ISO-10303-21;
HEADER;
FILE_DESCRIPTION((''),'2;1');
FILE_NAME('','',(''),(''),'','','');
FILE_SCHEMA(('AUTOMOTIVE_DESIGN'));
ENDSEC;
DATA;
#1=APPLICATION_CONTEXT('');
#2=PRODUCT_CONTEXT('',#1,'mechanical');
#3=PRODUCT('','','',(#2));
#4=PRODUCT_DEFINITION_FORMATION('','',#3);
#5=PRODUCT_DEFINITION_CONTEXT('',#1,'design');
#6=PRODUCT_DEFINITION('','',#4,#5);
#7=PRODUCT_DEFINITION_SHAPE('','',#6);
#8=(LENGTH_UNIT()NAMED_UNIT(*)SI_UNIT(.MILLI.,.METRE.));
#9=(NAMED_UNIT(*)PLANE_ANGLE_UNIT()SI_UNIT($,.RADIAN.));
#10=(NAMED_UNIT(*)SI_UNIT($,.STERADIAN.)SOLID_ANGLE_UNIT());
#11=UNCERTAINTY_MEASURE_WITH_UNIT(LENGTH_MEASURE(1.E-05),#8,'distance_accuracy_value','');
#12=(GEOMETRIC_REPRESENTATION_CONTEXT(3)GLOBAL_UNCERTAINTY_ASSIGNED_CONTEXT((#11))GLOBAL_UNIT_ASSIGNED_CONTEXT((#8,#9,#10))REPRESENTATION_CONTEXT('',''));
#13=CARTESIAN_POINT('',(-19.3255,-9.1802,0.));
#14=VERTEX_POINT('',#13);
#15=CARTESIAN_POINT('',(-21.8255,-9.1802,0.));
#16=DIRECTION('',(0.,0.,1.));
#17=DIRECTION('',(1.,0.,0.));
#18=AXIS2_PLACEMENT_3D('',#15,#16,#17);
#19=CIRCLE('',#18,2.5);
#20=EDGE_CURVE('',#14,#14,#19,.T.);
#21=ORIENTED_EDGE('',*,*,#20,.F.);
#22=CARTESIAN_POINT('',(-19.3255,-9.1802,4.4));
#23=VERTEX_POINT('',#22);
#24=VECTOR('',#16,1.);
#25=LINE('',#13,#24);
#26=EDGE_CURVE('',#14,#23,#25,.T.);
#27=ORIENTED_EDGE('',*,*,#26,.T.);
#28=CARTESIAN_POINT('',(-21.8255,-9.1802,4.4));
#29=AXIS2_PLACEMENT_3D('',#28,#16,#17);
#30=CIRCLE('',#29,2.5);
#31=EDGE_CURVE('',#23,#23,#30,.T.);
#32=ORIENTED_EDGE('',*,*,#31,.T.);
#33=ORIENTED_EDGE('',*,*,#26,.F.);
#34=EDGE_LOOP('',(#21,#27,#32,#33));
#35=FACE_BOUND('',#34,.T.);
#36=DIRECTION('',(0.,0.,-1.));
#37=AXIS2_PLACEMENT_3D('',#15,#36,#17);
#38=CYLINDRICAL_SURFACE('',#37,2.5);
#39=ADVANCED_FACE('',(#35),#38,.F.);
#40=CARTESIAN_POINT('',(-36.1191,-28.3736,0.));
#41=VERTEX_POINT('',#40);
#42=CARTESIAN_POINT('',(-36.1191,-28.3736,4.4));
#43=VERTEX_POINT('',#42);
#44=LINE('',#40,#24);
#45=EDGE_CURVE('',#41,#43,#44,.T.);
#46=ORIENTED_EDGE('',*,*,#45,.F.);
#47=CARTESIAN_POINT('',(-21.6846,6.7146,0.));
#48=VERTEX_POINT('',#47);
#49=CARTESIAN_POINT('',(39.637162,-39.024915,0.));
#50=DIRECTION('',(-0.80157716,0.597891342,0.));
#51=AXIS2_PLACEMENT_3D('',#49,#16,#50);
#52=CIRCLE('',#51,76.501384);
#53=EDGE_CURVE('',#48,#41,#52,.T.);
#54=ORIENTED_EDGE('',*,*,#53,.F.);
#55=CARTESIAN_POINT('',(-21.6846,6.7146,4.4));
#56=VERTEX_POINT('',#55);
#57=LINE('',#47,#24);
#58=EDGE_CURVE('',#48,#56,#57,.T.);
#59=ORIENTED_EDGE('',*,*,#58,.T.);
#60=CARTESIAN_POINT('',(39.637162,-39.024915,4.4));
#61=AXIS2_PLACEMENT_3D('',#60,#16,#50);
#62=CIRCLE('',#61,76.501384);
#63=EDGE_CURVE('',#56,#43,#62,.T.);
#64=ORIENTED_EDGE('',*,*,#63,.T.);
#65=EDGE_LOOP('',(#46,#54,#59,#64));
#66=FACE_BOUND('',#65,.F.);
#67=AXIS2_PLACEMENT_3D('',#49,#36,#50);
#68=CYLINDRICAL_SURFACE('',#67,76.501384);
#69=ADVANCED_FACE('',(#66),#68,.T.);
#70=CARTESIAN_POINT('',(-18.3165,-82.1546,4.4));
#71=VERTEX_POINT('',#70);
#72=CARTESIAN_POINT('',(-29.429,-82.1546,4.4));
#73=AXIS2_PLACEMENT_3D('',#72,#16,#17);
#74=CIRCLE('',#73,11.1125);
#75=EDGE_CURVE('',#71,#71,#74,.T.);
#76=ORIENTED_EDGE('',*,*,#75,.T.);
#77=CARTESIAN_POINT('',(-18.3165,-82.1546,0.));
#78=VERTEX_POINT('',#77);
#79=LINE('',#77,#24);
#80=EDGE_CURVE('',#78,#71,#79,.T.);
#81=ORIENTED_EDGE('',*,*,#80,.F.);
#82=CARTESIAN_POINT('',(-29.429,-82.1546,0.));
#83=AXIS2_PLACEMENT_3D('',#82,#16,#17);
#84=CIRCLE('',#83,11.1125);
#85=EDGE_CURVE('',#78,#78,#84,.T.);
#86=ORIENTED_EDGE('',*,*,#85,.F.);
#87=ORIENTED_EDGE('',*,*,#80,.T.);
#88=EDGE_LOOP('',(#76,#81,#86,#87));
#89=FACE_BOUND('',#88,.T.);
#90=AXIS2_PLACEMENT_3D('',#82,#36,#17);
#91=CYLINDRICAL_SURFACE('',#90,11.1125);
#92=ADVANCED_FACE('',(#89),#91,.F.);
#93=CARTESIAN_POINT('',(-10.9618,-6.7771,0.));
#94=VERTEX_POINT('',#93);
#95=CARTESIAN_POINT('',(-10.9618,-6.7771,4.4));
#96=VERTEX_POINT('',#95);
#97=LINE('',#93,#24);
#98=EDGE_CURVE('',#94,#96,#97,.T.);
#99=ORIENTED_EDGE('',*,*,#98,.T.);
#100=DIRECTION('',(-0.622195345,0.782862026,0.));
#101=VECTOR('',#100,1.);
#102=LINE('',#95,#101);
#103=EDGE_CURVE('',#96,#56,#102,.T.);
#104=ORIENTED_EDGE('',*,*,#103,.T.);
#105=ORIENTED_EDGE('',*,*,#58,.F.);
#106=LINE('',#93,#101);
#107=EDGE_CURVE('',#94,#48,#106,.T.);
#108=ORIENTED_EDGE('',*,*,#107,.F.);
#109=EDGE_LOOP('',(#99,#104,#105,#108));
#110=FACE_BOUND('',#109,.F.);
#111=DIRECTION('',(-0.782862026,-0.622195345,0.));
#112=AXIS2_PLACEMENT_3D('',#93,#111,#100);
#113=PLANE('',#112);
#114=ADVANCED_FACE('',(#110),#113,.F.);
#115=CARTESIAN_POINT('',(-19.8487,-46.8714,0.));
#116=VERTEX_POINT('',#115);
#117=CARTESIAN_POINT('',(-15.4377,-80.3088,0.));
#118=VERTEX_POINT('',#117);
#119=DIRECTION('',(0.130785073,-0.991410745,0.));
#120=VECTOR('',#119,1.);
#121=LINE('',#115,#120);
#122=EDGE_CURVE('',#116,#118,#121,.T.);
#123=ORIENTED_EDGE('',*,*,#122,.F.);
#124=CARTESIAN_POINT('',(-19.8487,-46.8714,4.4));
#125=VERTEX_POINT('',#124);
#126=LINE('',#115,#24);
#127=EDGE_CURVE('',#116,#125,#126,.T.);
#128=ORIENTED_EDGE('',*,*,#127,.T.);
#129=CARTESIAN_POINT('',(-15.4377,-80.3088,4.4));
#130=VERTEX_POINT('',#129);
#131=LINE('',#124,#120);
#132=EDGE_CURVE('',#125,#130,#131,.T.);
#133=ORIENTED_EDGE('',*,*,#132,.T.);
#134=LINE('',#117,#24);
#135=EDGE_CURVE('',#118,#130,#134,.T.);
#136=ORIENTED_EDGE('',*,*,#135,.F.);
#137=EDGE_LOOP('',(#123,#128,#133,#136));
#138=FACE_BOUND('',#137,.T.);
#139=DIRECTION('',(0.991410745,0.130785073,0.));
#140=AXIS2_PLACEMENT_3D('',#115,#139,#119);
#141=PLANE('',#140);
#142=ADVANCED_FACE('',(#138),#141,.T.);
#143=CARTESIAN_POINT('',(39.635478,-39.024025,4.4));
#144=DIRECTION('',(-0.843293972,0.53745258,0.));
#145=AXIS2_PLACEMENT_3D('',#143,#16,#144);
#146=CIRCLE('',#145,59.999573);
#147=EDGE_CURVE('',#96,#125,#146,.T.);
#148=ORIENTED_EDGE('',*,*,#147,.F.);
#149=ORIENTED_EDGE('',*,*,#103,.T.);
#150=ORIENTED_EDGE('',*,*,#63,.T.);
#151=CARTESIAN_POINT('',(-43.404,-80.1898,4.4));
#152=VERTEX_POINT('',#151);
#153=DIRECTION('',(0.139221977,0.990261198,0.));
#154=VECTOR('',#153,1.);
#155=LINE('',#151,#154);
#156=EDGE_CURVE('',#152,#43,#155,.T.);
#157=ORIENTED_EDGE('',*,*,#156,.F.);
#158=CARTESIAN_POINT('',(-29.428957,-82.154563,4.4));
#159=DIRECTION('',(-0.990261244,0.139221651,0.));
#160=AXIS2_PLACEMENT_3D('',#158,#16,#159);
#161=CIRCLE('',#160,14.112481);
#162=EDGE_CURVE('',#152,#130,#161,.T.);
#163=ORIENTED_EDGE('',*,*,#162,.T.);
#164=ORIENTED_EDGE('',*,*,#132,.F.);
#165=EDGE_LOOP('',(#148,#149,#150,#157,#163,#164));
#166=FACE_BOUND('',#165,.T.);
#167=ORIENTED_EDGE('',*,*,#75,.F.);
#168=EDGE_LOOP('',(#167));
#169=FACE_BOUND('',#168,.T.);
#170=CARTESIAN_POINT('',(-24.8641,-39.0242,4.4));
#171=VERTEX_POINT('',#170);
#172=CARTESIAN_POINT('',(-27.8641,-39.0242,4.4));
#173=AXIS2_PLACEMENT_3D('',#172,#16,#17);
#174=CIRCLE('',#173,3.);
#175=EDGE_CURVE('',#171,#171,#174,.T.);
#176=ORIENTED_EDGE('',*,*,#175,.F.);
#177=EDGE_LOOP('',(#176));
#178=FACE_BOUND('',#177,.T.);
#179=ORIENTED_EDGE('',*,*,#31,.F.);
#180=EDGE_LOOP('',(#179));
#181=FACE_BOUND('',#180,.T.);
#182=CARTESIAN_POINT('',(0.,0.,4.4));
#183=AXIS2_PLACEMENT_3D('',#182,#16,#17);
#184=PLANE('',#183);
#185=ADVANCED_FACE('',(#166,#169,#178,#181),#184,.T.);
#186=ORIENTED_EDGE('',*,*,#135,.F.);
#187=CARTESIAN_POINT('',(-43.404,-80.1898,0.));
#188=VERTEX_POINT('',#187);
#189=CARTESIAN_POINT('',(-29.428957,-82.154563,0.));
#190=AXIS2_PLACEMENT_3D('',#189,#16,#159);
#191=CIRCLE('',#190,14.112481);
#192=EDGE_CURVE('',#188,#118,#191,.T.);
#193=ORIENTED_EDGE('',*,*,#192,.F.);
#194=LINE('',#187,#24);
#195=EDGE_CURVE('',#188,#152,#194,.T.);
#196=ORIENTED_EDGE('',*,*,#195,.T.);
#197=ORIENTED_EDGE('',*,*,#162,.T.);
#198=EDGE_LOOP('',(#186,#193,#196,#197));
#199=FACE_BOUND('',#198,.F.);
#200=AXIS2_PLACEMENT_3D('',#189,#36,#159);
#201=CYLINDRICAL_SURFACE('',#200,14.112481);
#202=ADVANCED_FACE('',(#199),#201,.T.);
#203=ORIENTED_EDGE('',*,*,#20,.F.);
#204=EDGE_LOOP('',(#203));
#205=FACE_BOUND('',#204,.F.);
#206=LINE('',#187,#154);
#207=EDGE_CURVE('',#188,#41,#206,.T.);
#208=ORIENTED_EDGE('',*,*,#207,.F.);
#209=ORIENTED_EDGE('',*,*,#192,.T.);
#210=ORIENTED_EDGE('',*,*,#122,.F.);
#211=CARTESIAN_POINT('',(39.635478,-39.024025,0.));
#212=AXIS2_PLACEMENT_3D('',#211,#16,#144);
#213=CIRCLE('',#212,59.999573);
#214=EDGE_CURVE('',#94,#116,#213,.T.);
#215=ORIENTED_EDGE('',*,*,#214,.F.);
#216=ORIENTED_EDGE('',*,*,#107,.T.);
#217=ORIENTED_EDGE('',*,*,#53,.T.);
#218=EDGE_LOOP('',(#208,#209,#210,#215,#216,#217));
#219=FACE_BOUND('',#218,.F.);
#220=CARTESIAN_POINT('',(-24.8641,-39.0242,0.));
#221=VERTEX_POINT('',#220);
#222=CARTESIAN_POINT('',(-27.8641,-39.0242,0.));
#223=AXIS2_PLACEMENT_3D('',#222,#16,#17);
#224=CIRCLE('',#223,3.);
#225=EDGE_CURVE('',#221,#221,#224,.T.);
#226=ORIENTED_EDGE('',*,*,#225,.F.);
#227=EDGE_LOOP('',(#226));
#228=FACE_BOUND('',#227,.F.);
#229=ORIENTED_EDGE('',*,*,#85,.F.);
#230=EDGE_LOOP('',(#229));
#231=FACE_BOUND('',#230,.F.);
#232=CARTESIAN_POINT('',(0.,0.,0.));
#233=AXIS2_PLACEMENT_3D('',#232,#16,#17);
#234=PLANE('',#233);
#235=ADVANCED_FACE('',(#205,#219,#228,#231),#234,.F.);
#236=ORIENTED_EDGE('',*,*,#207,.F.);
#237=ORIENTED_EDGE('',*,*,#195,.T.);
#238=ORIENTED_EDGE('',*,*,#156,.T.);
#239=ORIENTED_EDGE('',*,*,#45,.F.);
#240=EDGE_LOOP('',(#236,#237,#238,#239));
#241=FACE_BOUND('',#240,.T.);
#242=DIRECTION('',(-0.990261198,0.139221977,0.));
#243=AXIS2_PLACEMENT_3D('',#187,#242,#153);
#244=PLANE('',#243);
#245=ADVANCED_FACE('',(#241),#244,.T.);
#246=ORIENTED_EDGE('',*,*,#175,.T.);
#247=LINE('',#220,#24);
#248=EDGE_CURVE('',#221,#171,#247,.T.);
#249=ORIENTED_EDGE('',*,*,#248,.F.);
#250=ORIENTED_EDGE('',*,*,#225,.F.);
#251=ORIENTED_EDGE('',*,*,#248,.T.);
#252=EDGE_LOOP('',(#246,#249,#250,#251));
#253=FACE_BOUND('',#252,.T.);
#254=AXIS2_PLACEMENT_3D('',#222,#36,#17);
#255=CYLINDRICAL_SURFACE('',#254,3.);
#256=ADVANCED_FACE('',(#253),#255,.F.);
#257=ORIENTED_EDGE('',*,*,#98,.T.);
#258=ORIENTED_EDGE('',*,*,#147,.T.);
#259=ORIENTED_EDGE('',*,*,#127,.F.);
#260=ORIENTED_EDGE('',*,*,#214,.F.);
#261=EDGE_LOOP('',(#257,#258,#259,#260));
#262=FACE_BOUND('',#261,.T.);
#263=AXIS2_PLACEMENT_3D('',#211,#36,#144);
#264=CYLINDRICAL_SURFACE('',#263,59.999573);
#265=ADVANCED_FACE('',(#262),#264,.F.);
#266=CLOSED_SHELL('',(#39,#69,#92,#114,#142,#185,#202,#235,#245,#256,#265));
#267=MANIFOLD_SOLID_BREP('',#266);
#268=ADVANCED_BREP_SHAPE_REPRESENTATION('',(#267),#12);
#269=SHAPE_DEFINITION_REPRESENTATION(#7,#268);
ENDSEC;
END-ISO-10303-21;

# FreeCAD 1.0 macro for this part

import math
import FreeCAD as App
import Part
import Sketcher

V = App.Vector

doc = App.newDocument("Part")
body = doc.addObject("PartDesign::Body", "Body")

sketch1 = doc.addObject("Sketcher::SketchObject", "Sketch")
body.addObject(sketch1)
sketch1.AttachmentSupport = (doc.XY_Plane, [""])
sketch1.MapMode = "FlatFace"
sketch1.addGeometry([
    Part.LineSegment(V(-36.1191, -28.3736, 0), V(-43.404, -80.1898, 0)),
    Part.ArcOfCircle(Part.Circle(V(-29.429, -82.1546, 0), V(0, 0, 1), 14.112444), math.radians(171.997017), math.radians(367.515338)),
    Part.LineSegment(V(-15.4377, -80.3088, 0), V(-19.8487, -46.8714, 0)),
    Part.ArcOfCircle(Part.Circle(V(39.6359, -39.0242, 0), V(0, 0, 1), 60.000023), math.radians(147.489683), math.radians(187.515057)),
    Part.LineSegment(V(-10.9618, -6.7771, 0), V(-21.6846, 6.7146, 0)),
    Part.ArcOfCircle(Part.Circle(V(39.637162, -39.024915, 0), V(0, 0, 1), 76.501384), math.radians(143.280975), math.radians(171.996687)),
    Part.Circle(V(-29.429, -82.1546, 0), V(0, 0, 1), 11.1125),
    Part.Circle(V(-27.8641, -39.0242, 0), V(0, 0, 1), 3),
    Part.Circle(V(-21.8255, -9.1802, 0), V(0, 0, 1), 2.5),
], False)
sketch1.addConstraint([
    Sketcher.Constraint("Coincident", 0, 2, 1, 1),
    Sketcher.Constraint("Coincident", 1, 2, 2, 1),
    Sketcher.Constraint("Coincident", 2, 2, 3, 2),
    Sketcher.Constraint("Coincident", 3, 1, 4, 1),
    Sketcher.Constraint("Coincident", 4, 2, 5, 1),
    Sketcher.Constraint("Coincident", 5, 2, 0, 1),
    Sketcher.Constraint("Coincident", 6, 3, 1, 3),
    Sketcher.Constraint("Diameter", 7, 6.0),
    Sketcher.Constraint("Diameter", 8, 5.0),
    Sketcher.Constraint("Radius", 3, 60.0),
    Sketcher.Constraint("Diameter", 6, 22.225),
    Sketcher.Constraint("Radius", 1, 14.1124),
    Sketcher.Constraint("Radius", 5, 76.5014),
    Sketcher.Constraint("DistanceX", 7, 3, 3, 3, 67.5),
    Sketcher.Constraint("DistanceX", 0, 2, 7, 3, 15.54),
    Sketcher.Constraint("Distance", 2, 33.727),
    Sketcher.Constraint("DistanceX", 1, 3, -1, 1, 29.429),
    Sketcher.Constraint("DistanceX", -1, 1, 3, 3, 39.636),
    Sketcher.Constraint("DistanceY", 5, 3, -1, 1, 39.025),
    Sketcher.Constraint("DistanceY", 3, 1, -1, 1, 6.777),
    Sketcher.Constraint("DistanceX", 5, 2, -1, 1, 36.119),
    Sketcher.Constraint("DistanceY", 7, 3, 8, 3, 29.844),
    Sketcher.Constraint("DistanceY", 3, 3, 8, 3, 29.844),
    Sketcher.Constraint("DistanceY", 1, 2, 0, 2, 0.119),
    Sketcher.Constraint("DistanceX", 2, 2, 1, 2, 4.411),
    Sketcher.Constraint("DistanceY", 8, 3, 3, 1, 2.403),
    Sketcher.Constraint("DistanceX", 3, 1, 5, 3, 50.599),
    Sketcher.Constraint("DistanceX", 8, 3, 4, 2, 0.141),
    Sketcher.Constraint("DistanceX", 4, 2, 2, 2, 1.836),
])
pad1 = doc.addObject("PartDesign::Pad", "Pad")
body.addObject(pad1)
pad1.Profile = sketch1
pad1.Length = 4.4

doc.recompute()
